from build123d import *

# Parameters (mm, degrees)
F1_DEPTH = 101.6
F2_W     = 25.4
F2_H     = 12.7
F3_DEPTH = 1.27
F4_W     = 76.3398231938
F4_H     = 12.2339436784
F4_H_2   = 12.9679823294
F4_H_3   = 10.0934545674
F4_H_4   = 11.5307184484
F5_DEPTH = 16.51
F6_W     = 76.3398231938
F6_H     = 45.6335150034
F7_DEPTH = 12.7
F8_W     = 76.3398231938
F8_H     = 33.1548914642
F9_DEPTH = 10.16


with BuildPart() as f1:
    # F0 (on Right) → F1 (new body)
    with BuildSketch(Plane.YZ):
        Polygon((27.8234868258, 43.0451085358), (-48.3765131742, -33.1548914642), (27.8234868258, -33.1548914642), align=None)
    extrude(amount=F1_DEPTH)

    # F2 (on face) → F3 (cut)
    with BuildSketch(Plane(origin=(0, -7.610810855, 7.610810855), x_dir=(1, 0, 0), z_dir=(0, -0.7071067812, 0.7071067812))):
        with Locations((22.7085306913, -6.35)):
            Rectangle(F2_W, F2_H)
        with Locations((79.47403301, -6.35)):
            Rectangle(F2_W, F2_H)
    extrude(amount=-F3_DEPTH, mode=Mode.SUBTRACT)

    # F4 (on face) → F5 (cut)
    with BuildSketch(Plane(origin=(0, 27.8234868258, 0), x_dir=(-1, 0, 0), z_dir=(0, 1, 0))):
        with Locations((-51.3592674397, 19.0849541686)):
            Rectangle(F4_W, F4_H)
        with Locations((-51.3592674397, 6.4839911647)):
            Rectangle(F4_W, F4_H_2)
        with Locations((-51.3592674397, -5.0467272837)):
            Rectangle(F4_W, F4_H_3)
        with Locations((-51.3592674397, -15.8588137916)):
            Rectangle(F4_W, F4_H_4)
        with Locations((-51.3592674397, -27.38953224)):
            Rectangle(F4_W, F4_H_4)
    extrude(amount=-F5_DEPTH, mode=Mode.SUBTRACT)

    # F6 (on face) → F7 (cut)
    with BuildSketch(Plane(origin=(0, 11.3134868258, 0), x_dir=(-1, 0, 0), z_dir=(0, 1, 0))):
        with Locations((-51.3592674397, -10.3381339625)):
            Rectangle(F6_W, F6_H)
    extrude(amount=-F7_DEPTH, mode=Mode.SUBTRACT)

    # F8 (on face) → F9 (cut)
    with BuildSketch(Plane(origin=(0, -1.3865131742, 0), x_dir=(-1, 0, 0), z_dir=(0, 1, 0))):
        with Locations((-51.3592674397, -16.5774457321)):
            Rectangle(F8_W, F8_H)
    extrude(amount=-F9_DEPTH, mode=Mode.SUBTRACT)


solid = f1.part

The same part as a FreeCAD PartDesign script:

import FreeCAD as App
import Part
import Sketcher

V = App.Vector
Q = App.Units.Quantity

doc = App.newDocument("Part")
body = doc.addObject("PartDesign::Body", "Body")

# Sketch on YZ plane
sketch1 = doc.addObject("Sketcher::SketchObject", "Sketch")
body.addObject(sketch1)
sketch1.AttachmentSupport = (doc.YZ_Plane, [""])
sketch1.MapMode = "FlatFace"
sketch1.addGeometry([
    Part.LineSegment(V(27.823487, 43.045109, 0), V(-48.376513, -33.154891, 0)),
    Part.LineSegment(V(-48.376513, -33.154891, 0), V(27.823487, -33.154891, 0)),
    Part.LineSegment(V(27.823487, -33.154891, 0), V(27.823487, 43.045109, 0)),
], False)
sketch1.addConstraint([
    Sketcher.Constraint("Coincident", 0, 2, 1, 1),
    Sketcher.Constraint("Coincident", 1, 2, 2, 1),
    Sketcher.Constraint("Coincident", 2, 2, 0, 1),
    Sketcher.Constraint("Horizontal", 1),
    Sketcher.Constraint("Vertical", 2),
    Sketcher.Constraint("Equal", 1, 2),
    Sketcher.Constraint("DistanceX", 1, 1, 1, 2, Q("3 in")),
    Sketcher.Constraint("DistanceY", 0, 2, -1, 1, Q("33.154891 mm")),
    Sketcher.Constraint("DistanceX", 0, 2, -1, 1, Q("48.376513 mm")),
])
pad1 = doc.addObject("PartDesign::Pad", "Pad")
body.addObject(pad1)
pad1.Profile = sketch1
pad1.Length = Q("4 in")

# Sketch on an angled plane
sketch2 = doc.addObject("Sketcher::SketchObject", "Sketch001")
body.addObject(sketch2)
sketch2.Placement = App.Placement(V(0, -7.610811, 7.610811), App.Rotation(V(1, 0, 0), V(0, 0.707106781, 0.707106781), V(0, -0.707106781, 0.707106781), "ZXY"))
sketch2.addGeometry([
    Part.LineSegment(V(10.008531, 0, 0), V(10.008531, -12.7, 0)),  # 0
    Part.LineSegment(V(10.008531, -12.7, 0), V(35.408531, -12.7, 0)),  # 1
    Part.LineSegment(V(35.408531, -12.7, 0), V(35.408531, 0, 0)),  # 2
    Part.LineSegment(V(35.408531, 0, 0), V(10.008531, 0, 0)),  # 3
    Part.LineSegment(V(66.774033, 0, 0), V(66.774033, -12.7, 0)),  # 4
    Part.LineSegment(V(66.774033, -12.7, 0), V(92.174033, -12.7, 0)),  # 5
    Part.LineSegment(V(92.174033, -12.7, 0), V(92.174033, 0, 0)),  # 6
    Part.LineSegment(V(92.174033, 0, 0), V(66.774033, 0, 0)),  # 7
], False)
sketch2.addConstraint([
    Sketcher.Constraint("Coincident", 0, 2, 1, 1),
    Sketcher.Constraint("Coincident", 1, 2, 2, 1),
    Sketcher.Constraint("Coincident", 2, 2, 3, 1),
    Sketcher.Constraint("Coincident", 3, 2, 0, 1),
    Sketcher.Constraint("Coincident", 4, 2, 5, 1),
    Sketcher.Constraint("Coincident", 5, 2, 6, 1),
    Sketcher.Constraint("Coincident", 6, 2, 7, 1),
    Sketcher.Constraint("Coincident", 7, 2, 4, 1),
    Sketcher.Constraint("Vertical", 0),
    Sketcher.Constraint("Horizontal", 1),
    Sketcher.Constraint("Vertical", 2),
    Sketcher.Constraint("Horizontal", 3),
    Sketcher.Constraint("Vertical", 4),
    Sketcher.Constraint("Horizontal", 5),
    Sketcher.Constraint("Vertical", 6),
    Sketcher.Constraint("Horizontal", 7),
    Sketcher.Constraint("PointOnObject", 2, 2, -1),
    Sketcher.Constraint("PointOnObject", 6, 2, -1),
    Sketcher.Constraint("Horizontal", 1, 2, 4, 2),
    Sketcher.Constraint("Equal", 3, 5),
    Sketcher.Constraint("DistanceX", 1, 1, 1, 2, Q("1 in")),
    Sketcher.Constraint("DistanceY", 0, 2, 0, 1, Q("0.5 in")),
    Sketcher.Constraint("DistanceX", -1, 1, 0, 2, Q("10.008531 mm")),
    Sketcher.Constraint("DistanceX", -1, 1, 4, 2, Q("66.774033 mm")),
])
pocket1 = doc.addObject("PartDesign::Pocket", "Pocket")
body.addObject(pocket1)
pocket1.Profile = sketch2
pocket1.Length = Q("0.05 in")

# Sketch on XZ plane
sketch3 = doc.addObject("Sketcher::SketchObject", "Sketch002")
body.addObject(sketch3)
sketch3.AttachmentSupport = (doc.XZ_Plane, [""])
sketch3.MapMode = "FlatFace"
sketch3.AttachmentOffset = App.Placement(V(0, 0, -27.823487), App.Rotation())
sketch3.addGeometry([
    Part.LineSegment(V(89.529179, 25.201926, 0), V(89.529179, -33.154891, 0)),
    Part.LineSegment(V(89.529179, -33.154891, 0), V(13.189356, -33.154891, 0)),
    Part.LineSegment(V(13.189356, -33.154891, 0), V(13.189356, 25.201926, 0)),
    Part.LineSegment(V(13.189356, 25.201926, 0), V(89.529179, 25.201926, 0)),
], False)
sketch3.addConstraint([
    Sketcher.Constraint("Coincident", 0, 2, 1, 1),
    Sketcher.Constraint("Coincident", 1, 2, 2, 1),
    Sketcher.Constraint("Coincident", 2, 2, 3, 1),
    Sketcher.Constraint("Coincident", 3, 2, 0, 1),
    Sketcher.Constraint("Vertical", 0),
    Sketcher.Constraint("Horizontal", 1),
    Sketcher.Constraint("Vertical", 2),
    Sketcher.Constraint("Horizontal", 3),
    Sketcher.Constraint("DistanceX", 1, 2, 1, 1, Q("76.339823 mm")),
    Sketcher.Constraint("DistanceY", 0, 2, 0, 1, Q("58.356817 mm")),
    Sketcher.Constraint("DistanceX", -1, 1, 0, 2, Q("89.529179 mm")),
    Sketcher.Constraint("DistanceY", 0, 2, -1, 1, Q("33.154891 mm")),
])
pocket2 = doc.addObject("PartDesign::Pocket", "Pocket001")
body.addObject(pocket2)
pocket2.Profile = sketch3
pocket2.Length = Q("0.65 in")
pocket2.Reversed = True

# Sketch on XZ plane
sketch4 = doc.addObject("Sketcher::SketchObject", "Sketch003")
body.addObject(sketch4)
sketch4.AttachmentSupport = (doc.XZ_Plane, [""])
sketch4.MapMode = "FlatFace"
sketch4.AttachmentOffset = App.Placement(V(0, 0, -11.313487), App.Rotation())
sketch4.addGeometry([
    Part.LineSegment(V(89.529179, 12.478624, 0), V(89.529179, -33.154891, 0)),
    Part.LineSegment(V(89.529179, -33.154891, 0), V(13.189356, -33.154891, 0)),
    Part.LineSegment(V(13.189356, -33.154891, 0), V(13.189356, 12.478624, 0)),
    Part.LineSegment(V(13.189356, 12.478624, 0), V(89.529179, 12.478624, 0)),
], False)
sketch4.addConstraint([
    Sketcher.Constraint("Coincident", 0, 2, 1, 1),
    Sketcher.Constraint("Coincident", 1, 2, 2, 1),
    Sketcher.Constraint("Coincident", 2, 2, 3, 1),
    Sketcher.Constraint("Coincident", 3, 2, 0, 1),
    Sketcher.Constraint("Vertical", 0),
    Sketcher.Constraint("Horizontal", 1),
    Sketcher.Constraint("Vertical", 2),
    Sketcher.Constraint("Horizontal", 3),
    Sketcher.Constraint("DistanceX", 1, 2, 1, 1, Q("76.339823 mm")),
    Sketcher.Constraint("DistanceY", 0, 2, 0, 1, Q("45.633515 mm")),
    Sketcher.Constraint("DistanceX", -1, 1, 0, 2, Q("89.529179 mm")),
    Sketcher.Constraint("DistanceY", 0, 2, -1, 1, Q("33.154891 mm")),
])
pocket3 = doc.addObject("PartDesign::Pocket", "Pocket002")
body.addObject(pocket3)
pocket3.Profile = sketch4
pocket3.Length = Q("0.5 in")
pocket3.Reversed = True

# Sketch on XZ plane
sketch5 = doc.addObject("Sketcher::SketchObject", "Sketch004")
body.addObject(sketch5)
sketch5.AttachmentSupport = (doc.XZ_Plane, [""])
sketch5.MapMode = "FlatFace"
sketch5.AttachmentOffset = App.Placement(V(0, 0, 1.386513), App.Rotation())
sketch5.addGeometry([
    Part.LineSegment(V(89.529179, 0, 0), V(89.529179, -33.154891, 0)),
    Part.LineSegment(V(89.529179, -33.154891, 0), V(13.189356, -33.154891, 0)),
    Part.LineSegment(V(13.189356, -33.154891, 0), V(13.189356, 0, 0)),
    Part.LineSegment(V(13.189356, 0, 0), V(89.529179, 0, 0)),
], False)
sketch5.addConstraint([
    Sketcher.Constraint("Coincident", 0, 2, 1, 1),
    Sketcher.Constraint("Coincident", 1, 2, 2, 1),
    Sketcher.Constraint("Coincident", 2, 2, 3, 1),
    Sketcher.Constraint("Coincident", 3, 2, 0, 1),
    Sketcher.Constraint("Vertical", 0),
    Sketcher.Constraint("Horizontal", 1),
    Sketcher.Constraint("Vertical", 2),
    Sketcher.Constraint("Horizontal", 3),
    Sketcher.Constraint("PointOnObject", 2, 2, -1),
    Sketcher.Constraint("DistanceY", 0, 2, 0, 1, Q("33.154891 mm")),
    Sketcher.Constraint("DistanceX", 1, 2, 1, 1, Q("76.339823 mm")),
    Sketcher.Constraint("DistanceX", -1, 1, 0, 2, Q("89.529179 mm")),
])
pocket4 = doc.addObject("PartDesign::Pocket", "Pocket003")
body.addObject(pocket4)
pocket4.Profile = sketch5
pocket4.Length = Q("0.4 in")
pocket4.Reversed = True

doc.recompute()
